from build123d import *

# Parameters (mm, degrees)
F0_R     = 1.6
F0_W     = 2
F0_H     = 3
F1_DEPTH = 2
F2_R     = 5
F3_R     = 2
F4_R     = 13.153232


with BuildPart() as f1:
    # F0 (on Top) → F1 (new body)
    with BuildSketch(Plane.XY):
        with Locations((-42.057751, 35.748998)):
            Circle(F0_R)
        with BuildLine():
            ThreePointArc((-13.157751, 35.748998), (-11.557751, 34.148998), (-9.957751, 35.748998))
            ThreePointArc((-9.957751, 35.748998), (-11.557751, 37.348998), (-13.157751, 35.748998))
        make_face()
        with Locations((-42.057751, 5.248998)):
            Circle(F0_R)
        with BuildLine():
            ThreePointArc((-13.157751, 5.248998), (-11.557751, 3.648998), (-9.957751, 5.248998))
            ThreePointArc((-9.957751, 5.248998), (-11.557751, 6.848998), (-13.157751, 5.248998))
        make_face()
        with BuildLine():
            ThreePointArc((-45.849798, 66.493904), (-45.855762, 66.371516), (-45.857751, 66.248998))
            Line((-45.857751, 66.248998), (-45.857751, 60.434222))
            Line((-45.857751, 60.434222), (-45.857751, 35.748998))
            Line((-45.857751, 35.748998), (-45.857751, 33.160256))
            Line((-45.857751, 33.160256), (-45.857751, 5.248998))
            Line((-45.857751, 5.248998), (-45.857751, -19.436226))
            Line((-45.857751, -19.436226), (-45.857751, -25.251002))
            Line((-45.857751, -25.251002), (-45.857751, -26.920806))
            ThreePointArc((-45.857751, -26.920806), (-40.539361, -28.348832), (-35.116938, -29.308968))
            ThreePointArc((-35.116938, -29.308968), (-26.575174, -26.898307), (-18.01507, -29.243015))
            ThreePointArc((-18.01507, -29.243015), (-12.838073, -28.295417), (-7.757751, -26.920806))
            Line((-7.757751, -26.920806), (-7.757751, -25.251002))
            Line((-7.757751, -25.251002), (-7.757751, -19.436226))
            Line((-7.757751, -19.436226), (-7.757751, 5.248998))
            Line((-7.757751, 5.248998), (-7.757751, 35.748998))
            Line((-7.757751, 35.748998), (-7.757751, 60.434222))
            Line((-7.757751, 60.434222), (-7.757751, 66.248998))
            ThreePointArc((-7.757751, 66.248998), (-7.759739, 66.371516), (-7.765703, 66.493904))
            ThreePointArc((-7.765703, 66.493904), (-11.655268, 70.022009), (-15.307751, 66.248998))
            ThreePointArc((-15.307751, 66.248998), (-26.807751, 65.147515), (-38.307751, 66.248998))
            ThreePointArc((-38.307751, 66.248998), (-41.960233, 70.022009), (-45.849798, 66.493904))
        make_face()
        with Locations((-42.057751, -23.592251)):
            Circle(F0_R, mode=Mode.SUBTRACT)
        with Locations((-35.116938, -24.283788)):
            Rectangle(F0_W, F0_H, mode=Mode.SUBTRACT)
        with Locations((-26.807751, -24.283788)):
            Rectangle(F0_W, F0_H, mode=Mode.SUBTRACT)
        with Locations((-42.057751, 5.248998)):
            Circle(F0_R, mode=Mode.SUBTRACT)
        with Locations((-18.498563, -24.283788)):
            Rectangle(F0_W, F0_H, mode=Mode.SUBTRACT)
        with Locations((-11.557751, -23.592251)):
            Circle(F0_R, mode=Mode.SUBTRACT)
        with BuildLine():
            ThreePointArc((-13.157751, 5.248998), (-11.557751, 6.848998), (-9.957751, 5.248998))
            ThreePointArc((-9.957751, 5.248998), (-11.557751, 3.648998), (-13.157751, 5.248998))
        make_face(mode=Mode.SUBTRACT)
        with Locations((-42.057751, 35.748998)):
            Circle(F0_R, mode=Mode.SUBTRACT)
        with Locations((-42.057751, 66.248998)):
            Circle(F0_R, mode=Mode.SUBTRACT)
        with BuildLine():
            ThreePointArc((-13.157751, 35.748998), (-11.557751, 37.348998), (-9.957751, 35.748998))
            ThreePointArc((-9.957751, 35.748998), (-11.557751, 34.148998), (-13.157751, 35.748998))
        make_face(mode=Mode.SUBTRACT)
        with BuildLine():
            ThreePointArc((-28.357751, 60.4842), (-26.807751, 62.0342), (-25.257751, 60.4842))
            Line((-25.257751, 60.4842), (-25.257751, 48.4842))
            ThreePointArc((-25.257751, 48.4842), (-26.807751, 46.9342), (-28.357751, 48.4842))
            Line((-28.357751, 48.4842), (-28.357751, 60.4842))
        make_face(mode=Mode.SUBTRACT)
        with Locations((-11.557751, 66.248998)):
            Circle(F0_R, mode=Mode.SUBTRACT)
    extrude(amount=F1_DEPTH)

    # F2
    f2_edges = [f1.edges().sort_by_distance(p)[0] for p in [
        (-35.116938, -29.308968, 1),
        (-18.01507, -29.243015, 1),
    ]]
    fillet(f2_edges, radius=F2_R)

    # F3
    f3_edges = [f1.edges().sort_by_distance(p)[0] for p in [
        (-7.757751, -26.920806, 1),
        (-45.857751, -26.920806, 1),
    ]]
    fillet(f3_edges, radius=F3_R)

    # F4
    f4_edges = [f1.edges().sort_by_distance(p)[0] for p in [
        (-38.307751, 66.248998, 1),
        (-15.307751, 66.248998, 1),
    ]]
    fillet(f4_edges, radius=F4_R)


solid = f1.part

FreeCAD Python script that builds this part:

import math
import FreeCAD as App
import Part
import Sketcher


def edges_at(feature, points):
    """Names of the edges that pass closest to the given points."""
    edges = feature.Shape.Edges
    near = lambda p: min(range(len(edges)), key=lambda i: edges[i].distToShape(Part.Vertex(*p))[0])
    return sorted({f"Edge{near(p) + 1}" for p in points})


def add_polygon(sketch, points):
    """Adds a closed chain of lines whose ends are joined by coincident constraints."""
    first, n = sketch.GeometryCount, len(points)
    for a, b in zip(points, points[1:] + points[:1]):
        sketch.addGeometry(Part.LineSegment(App.Vector(*a, 0), App.Vector(*b, 0)), False)
    for i in range(n):
        sketch.addConstraint(Sketcher.Constraint("Coincident", first + i, 2, first + (i + 1) % n, 1))

doc = App.newDocument("Part")
body = doc.addObject("PartDesign::Body", "Body")

# Sketch on XY plane
sketch1 = body.newObject("Sketcher::SketchObject", "Sketch")
sketch1.AttachmentSupport = (doc.getObject("XY_Plane"), [""])
sketch1.MapMode = "FlatFace"
sketch1.addGeometry(Part.ArcOfCircle(Part.Circle(App.Vector(-42.082536, 66.248985, 0), App.Vector(0, 0, 1), 3.775215), math.radians(176.280295), math.radians(179.999802)), False)  # 0
sketch1.addGeometry(Part.LineSegment(App.Vector(-45.857751, 66.248998, 0), App.Vector(-45.857751, -26.920806, 0)), False)  # 1
sketch1.addGeometry(Part.ArcOfCircle(Part.Circle(App.Vector(-26.807781, 33.409261, 0), App.Vector(0, 0, 1), 63.266249), math.radians(-107.524161), math.radians(-97.54682)), False)  # 2
sketch1.addGeometry(Part.ArcOfCircle(Part.Circle(App.Vector(-26.511292, -43.463132, 0), App.Vector(0, 0, 1), 16.564948), math.radians(59.142569), math.radians(121.299349)), False)  # 3
sketch1.addGeometry(Part.ArcOfCircle(Part.Circle(App.Vector(-26.807733, 33.409301, 0), App.Vector(0, 0, 1), 63.266291), math.radians(-82.011251), math.radians(-72.47584)), False)  # 4
sketch1.addGeometry(Part.LineSegment(App.Vector(-7.757751, -26.920806, 0), App.Vector(-7.757751, 66.248998, 0)), False)  # 5
sketch1.addGeometry(Part.ArcOfCircle(Part.Circle(App.Vector(-11.532017, 66.249031, 0), App.Vector(0, 0, 1), 3.774266), math.radians(-0.000504), math.radians(3.719939)), False)  # 6
sketch1.addGeometry(Part.ArcOfCircle(Part.Circle(App.Vector(-11.532751, 66.248997, 0), App.Vector(0, 0, 1), 3.775), math.radians(3.719729), math.radians(179.99999)), False)  # 7
sketch1.addGeometry(Part.ArcOfCircle(Part.Circle(App.Vector(-26.807751, 125.730958, 0), App.Vector(0, 0, 1), 60.583443), math.radians(-100.942329), math.radians(-79.057671)), False)  # 8
sketch1.addGeometry(Part.ArcOfCircle(Part.Circle(App.Vector(-42.082751, 66.248998, 0), App.Vector(0, 0, 1), 3.775), math.radians(0.000002), math.radians(176.280278)), False)  # 9
sketch1.addGeometry(Part.Circle(App.Vector(-42.057751, -23.592251, 0), App.Vector(0, 0, 1), 1.6), False)  # 10
add_polygon(sketch1, [(-34.116938, -25.783788), (-36.116938, -25.783788), (-36.116938, -22.783788), (-34.116938, -22.783788)])  # lines 11-14
sketch1.addGeometry(Part.Circle(App.Vector(-42.057751, 5.248998, 0), App.Vector(0, 0, 1), 1.6), False)  # 15
add_polygon(sketch1, [(-25.807751, -25.783788), (-27.807751, -25.783788), (-27.807751, -22.783788), (-25.807751, -22.783788)])  # lines 16-19
add_polygon(sketch1, [(-17.498563, -25.783788), (-19.498563, -25.783788), (-19.498563, -22.783788), (-17.498563, -22.783788)])  # lines 20-23
sketch1.addGeometry(Part.Circle(App.Vector(-11.557751, -23.592251, 0), App.Vector(0, 0, 1), 1.6), False)  # 24
sketch1.addGeometry(Part.Circle(App.Vector(-11.557751, 5.248998, 0), App.Vector(0, 0, 1), 1.6), False)  # 25
sketch1.addGeometry(Part.Circle(App.Vector(-42.057751, 35.748998, 0), App.Vector(0, 0, 1), 1.6), False)  # 26
sketch1.addGeometry(Part.Circle(App.Vector(-42.057751, 66.248998, 0), App.Vector(0, 0, 1), 1.6), False)  # 27
sketch1.addGeometry(Part.Circle(App.Vector(-11.557751, 35.748998, 0), App.Vector(0, 0, 1), 1.6), False)  # 28
sketch1.addGeometry(Part.LineSegment(App.Vector(-28.357751, 48.4842, 0), App.Vector(-28.357751, 60.4842, 0)), False)  # 29
sketch1.addGeometry(Part.ArcOfCircle(Part.Circle(App.Vector(-26.807751, 60.4842, 0), App.Vector(0, 0, 1), 1.55), math.radians(0), math.radians(180)), False)  # 30
sketch1.addGeometry(Part.LineSegment(App.Vector(-25.257751, 60.4842, 0), App.Vector(-25.257751, 48.4842, 0)), False)  # 31
sketch1.addGeometry(Part.ArcOfCircle(Part.Circle(App.Vector(-26.807751, 48.4842, 0), App.Vector(0, 0, 1), 1.55), math.radians(180), math.radians(360)), False)  # 32
sketch1.addGeometry(Part.Circle(App.Vector(-11.557751, 66.248998, 0), App.Vector(0, 0, 1), 1.6), False)  # 33
sketch1.addConstraint(Sketcher.Constraint("Coincident", 0, 2, 1, 1))
sketch1.addConstraint(Sketcher.Constraint("Coincident", 1, 2, 2, 1))
sketch1.addConstraint(Sketcher.Constraint("Coincident", 2, 2, 3, 2))
sketch1.addConstraint(Sketcher.Constraint("Coincident", 3, 1, 4, 1))
sketch1.addConstraint(Sketcher.Constraint("Coincident", 4, 2, 5, 1))
sketch1.addConstraint(Sketcher.Constraint("Coincident", 5, 2, 6, 1))
sketch1.addConstraint(Sketcher.Constraint("Coincident", 6, 2, 7, 1))
sketch1.addConstraint(Sketcher.Constraint("Coincident", 7, 2, 8, 2))
sketch1.addConstraint(Sketcher.Constraint("Coincident", 8, 1, 9, 1))
sketch1.addConstraint(Sketcher.Constraint("Coincident", 9, 2, 0, 1))
sketch1.addConstraint(Sketcher.Constraint("Coincident", 29, 2, 30, 2))
sketch1.addConstraint(Sketcher.Constraint("Coincident", 30, 1, 31, 1))
sketch1.addConstraint(Sketcher.Constraint("Coincident", 31, 2, 32, 2))
sketch1.addConstraint(Sketcher.Constraint("Coincident", 32, 1, 29, 1))
sketch1.addConstraint(Sketcher.Constraint("Vertical", 1))
sketch1.addConstraint(Sketcher.Constraint("Vertical", 5))
sketch1.addConstraint(Sketcher.Constraint("Horizontal", 11))
sketch1.addConstraint(Sketcher.Constraint("Vertical", 12))
sketch1.addConstraint(Sketcher.Constraint("Horizontal", 13))
sketch1.addConstraint(Sketcher.Constraint("Vertical", 14))
sketch1.addConstraint(Sketcher.Constraint("Horizontal", 16))
sketch1.addConstraint(Sketcher.Constraint("Vertical", 17))
sketch1.addConstraint(Sketcher.Constraint("Horizontal", 18))
sketch1.addConstraint(Sketcher.Constraint("Vertical", 19))
sketch1.addConstraint(Sketcher.Constraint("Horizontal", 20))
sketch1.addConstraint(Sketcher.Constraint("Vertical", 21))
sketch1.addConstraint(Sketcher.Constraint("Horizontal", 22))
sketch1.addConstraint(Sketcher.Constraint("Vertical", 23))
sketch1.addConstraint(Sketcher.Constraint("Vertical", 29))
sketch1.addConstraint(Sketcher.Constraint("Vertical", 31))
sketch1.addConstraint(Sketcher.Constraint("Diameter", 10, 3.2))
sketch1.addConstraint(Sketcher.Constraint("Diameter", 15, 3.2))
sketch1.addConstraint(Sketcher.Constraint("Diameter", 24, 3.2))
sketch1.addConstraint(Sketcher.Constraint("Diameter", 25, 3.2))
sketch1.addConstraint(Sketcher.Constraint("Diameter", 26, 3.2))
sketch1.addConstraint(Sketcher.Constraint("Diameter", 27, 3.2))
sketch1.addConstraint(Sketcher.Constraint("Diameter", 28, 3.2))
sketch1.addConstraint(Sketcher.Constraint("Diameter", 33, 3.2))
sketch1.addConstraint(Sketcher.Constraint("DistanceX", 11, 2, 11, 1, 2.0))
sketch1.addConstraint(Sketcher.Constraint("DistanceX", 16, 2, 16, 1, 2.0))
sketch1.addConstraint(Sketcher.Constraint("DistanceX", 20, 2, 20, 1, 2.0))
sketch1.addConstraint(Sketcher.Constraint("DistanceY", 12, 1, 12, 2, 3.0))
sketch1.addConstraint(Sketcher.Constraint("DistanceY", 17, 1, 17, 2, 3.0))
sketch1.addConstraint(Sketcher.Constraint("DistanceY", 21, 1, 21, 2, 3.0))
sketch1.addConstraint(Sketcher.Constraint("DistanceY", 29, 1, 29, 2, 12.0))
sketch1.addConstraint(Sketcher.Constraint("DistanceY", 31, 2, 31, 1, 12.0))
sketch1.addConstraint(Sketcher.Constraint("Radius", 30, 1.55))
sketch1.addConstraint(Sketcher.Constraint("Radius", 7, 3.775))
sketch1.addConstraint(Sketcher.Constraint("Radius", 9, 3.775))
sketch1.addConstraint(Sketcher.Constraint("DistanceY", 32, 3, 30, 3, 12.0))
sketch1.addConstraint(Sketcher.Constraint("DistanceX", 11, 2, 2, 2, 1.0))
sketch1.addConstraint(Sketcher.Constraint("DistanceY", 16, 2, 13, 2, 3.0))
sketch1.addConstraint(Sketcher.Constraint("DistanceY", 20, 2, 18, 2, 3.0))
sketch1.addConstraint(Sketcher.Constraint("DistanceY", 32, 3, 29, 2, 12.0))
sketch1.addConstraint(Sketcher.Constraint("DistanceY", 32, 3, 30, 1, 12.0))
sketch1.addConstraint(Sketcher.Constraint("DistanceX", 10, 3, 24, 3, 30.5))
sketch1.addConstraint(Sketcher.Constraint("DistanceX", 15, 3, 24, 3, 30.5))
sketch1.addConstraint(Sketcher.Constraint("DistanceX", 15, 3, 25, 3, 30.5))
sketch1.addConstraint(Sketcher.Constraint("DistanceY", 15, 3, 26, 3, 30.5))
sketch1.addConstraint(Sketcher.Constraint("DistanceY", 26, 3, 9, 3, 30.5))
sketch1.addConstraint(Sketcher.Constraint("DistanceY", 26, 3, 27, 3, 30.5))
sketch1.addConstraint(Sketcher.Constraint("DistanceY", 25, 3, 28, 3, 30.5))
sketch1.addConstraint(Sketcher.Constraint("DistanceX", 26, 3, 28, 3, 30.5))
sketch1.addConstraint(Sketcher.Constraint("DistanceY", 28, 3, 7, 3, 30.499999))
sketch1.addConstraint(Sketcher.Constraint("DistanceY", 28, 3, 33, 3, 30.5))
sketch1.addConstraint(Sketcher.Constraint("DistanceX", 0, 2, 27, 3, 3.8))
sketch1.addConstraint(Sketcher.Constraint("DistanceX", 1, 2, 10, 3, 3.8))
sketch1.addConstraint(Sketcher.Constraint("DistanceX", 24, 3, 4, 2, 3.8))
sketch1.addConstraint(Sketcher.Constraint("DistanceX", 33, 3, 5, 2, 3.8))
sketch1.addConstraint(Sketcher.Constraint("DistanceX", 8, 1, 30, 3, 11.5))
sketch1.addConstraint(Sketcher.Constraint("DistanceX", 27, 3, 29, 2, 13.7))
sketch1.addConstraint(Sketcher.Constraint("Radius", 2, 63.266249))
sketch1.addConstraint(Sketcher.Constraint("Radius", 3, 16.564948))
sketch1.addConstraint(Sketcher.Constraint("Radius", 4, 63.266291))
sketch1.addConstraint(Sketcher.Constraint("DistanceX", 9, 3, 7, 3, 30.55))
sketch1.addConstraint(Sketcher.Constraint("DistanceX", 32, 3, 28, 3, 15.25))
sketch1.addConstraint(Sketcher.Constraint("DistanceY", -1, 1, 15, 3, 5.248998))
sketch1.addConstraint(Sketcher.Constraint("DistanceY", -1, 1, 25, 3, 5.248998))
sketch1.addConstraint(Sketcher.Constraint("DistanceY", -1, 1, 0, 2, 66.248998))
sketch1.addConstraint(Sketcher.Constraint("DistanceY", -1, 1, 5, 2, 66.248998))
sketch1.addConstraint(Sketcher.Constraint("DistanceY", -1, 1, 7, 2, 66.248998))
sketch1.addConstraint(Sketcher.Constraint("DistanceY", -1, 1, 8, 1, 66.248998))
sketch1.addConstraint(Sketcher.Constraint("Radius", 0, 3.775215))
sketch1.addConstraint(Sketcher.Constraint("Radius", 6, 3.774266))
sketch1.addConstraint(Sketcher.Constraint("Radius", 8, 60.583443))
sketch1.addConstraint(Sketcher.Constraint("DistanceY", -1, 1, 4, 3, 33.409301))
sketch1.addConstraint(Sketcher.Constraint("DistanceY", -1, 1, 30, 3, 60.4842))
sketch1.addConstraint(Sketcher.Constraint("DistanceY", 1, 2, 1, 1, 93.169804))
sketch1.addConstraint(Sketcher.Constraint("DistanceY", 5, 1, 5, 2, 93.169804))
sketch1.addConstraint(Sketcher.Constraint("DistanceX", 2, 3, -1, 1, 26.807781))
sketch1.addConstraint(Sketcher.Constraint("DistanceY", -1, 1, 2, 3, 33.409261))
sketch1.addConstraint(Sketcher.Constraint("DistanceX", 3, 3, -1, 1, 26.511292))
sketch1.addConstraint(Sketcher.Constraint("DistanceY", 10, 3, -1, 1, 23.592251))
sketch1.addConstraint(Sketcher.Constraint("DistanceY", 24, 3, -1, 1, 23.592251))
sketch1.addConstraint(Sketcher.Constraint("DistanceX", 2, 2, -1, 1, 35.116938))
sketch1.addConstraint(Sketcher.Constraint("DistanceY", 11, 2, -1, 1, 25.783788))
sketch1.addConstraint(Sketcher.Constraint("DistanceX", 16, 2, -1, 1, 27.807751))
sketch1.addConstraint(Sketcher.Constraint("DistanceX", 6, 2, 5, 2, 0.007952))
sketch1.addConstraint(Sketcher.Constraint("DistanceY", 0, 3, 9, 2, 0.244919))
sketch1.addConstraint(Sketcher.Constraint("DistanceX", 20, 2, -1, 1, 19.498563))
pad1 = body.newObject("PartDesign::Pad", "Pad")
pad1.Profile = sketch1
pad1.Length = 2
doc.recompute()

fillet = body.newObject("PartDesign::Fillet", "Fillet")
fillet.Base = (pad1, edges_at(pad1, [(-35.117, -29.309, 1), (-18.015, -29.243, 1)]))
fillet.Radius = 5
doc.recompute()

fillet2 = body.newObject("PartDesign::Fillet", "Fillet001")
fillet2.Base = (fillet, edges_at(fillet, [(-7.758, -26.921, 1), (-45.858, -26.921, 1)]))
fillet2.Radius = 2
doc.recompute()

fillet3 = body.newObject("PartDesign::Fillet", "Fillet002")
fillet3.Base = (fillet2, edges_at(fillet2, [(-38.308, 66.249, 1), (-15.308, 66.249, 1)]))
fillet3.Radius = 13.153232

doc.recompute()
